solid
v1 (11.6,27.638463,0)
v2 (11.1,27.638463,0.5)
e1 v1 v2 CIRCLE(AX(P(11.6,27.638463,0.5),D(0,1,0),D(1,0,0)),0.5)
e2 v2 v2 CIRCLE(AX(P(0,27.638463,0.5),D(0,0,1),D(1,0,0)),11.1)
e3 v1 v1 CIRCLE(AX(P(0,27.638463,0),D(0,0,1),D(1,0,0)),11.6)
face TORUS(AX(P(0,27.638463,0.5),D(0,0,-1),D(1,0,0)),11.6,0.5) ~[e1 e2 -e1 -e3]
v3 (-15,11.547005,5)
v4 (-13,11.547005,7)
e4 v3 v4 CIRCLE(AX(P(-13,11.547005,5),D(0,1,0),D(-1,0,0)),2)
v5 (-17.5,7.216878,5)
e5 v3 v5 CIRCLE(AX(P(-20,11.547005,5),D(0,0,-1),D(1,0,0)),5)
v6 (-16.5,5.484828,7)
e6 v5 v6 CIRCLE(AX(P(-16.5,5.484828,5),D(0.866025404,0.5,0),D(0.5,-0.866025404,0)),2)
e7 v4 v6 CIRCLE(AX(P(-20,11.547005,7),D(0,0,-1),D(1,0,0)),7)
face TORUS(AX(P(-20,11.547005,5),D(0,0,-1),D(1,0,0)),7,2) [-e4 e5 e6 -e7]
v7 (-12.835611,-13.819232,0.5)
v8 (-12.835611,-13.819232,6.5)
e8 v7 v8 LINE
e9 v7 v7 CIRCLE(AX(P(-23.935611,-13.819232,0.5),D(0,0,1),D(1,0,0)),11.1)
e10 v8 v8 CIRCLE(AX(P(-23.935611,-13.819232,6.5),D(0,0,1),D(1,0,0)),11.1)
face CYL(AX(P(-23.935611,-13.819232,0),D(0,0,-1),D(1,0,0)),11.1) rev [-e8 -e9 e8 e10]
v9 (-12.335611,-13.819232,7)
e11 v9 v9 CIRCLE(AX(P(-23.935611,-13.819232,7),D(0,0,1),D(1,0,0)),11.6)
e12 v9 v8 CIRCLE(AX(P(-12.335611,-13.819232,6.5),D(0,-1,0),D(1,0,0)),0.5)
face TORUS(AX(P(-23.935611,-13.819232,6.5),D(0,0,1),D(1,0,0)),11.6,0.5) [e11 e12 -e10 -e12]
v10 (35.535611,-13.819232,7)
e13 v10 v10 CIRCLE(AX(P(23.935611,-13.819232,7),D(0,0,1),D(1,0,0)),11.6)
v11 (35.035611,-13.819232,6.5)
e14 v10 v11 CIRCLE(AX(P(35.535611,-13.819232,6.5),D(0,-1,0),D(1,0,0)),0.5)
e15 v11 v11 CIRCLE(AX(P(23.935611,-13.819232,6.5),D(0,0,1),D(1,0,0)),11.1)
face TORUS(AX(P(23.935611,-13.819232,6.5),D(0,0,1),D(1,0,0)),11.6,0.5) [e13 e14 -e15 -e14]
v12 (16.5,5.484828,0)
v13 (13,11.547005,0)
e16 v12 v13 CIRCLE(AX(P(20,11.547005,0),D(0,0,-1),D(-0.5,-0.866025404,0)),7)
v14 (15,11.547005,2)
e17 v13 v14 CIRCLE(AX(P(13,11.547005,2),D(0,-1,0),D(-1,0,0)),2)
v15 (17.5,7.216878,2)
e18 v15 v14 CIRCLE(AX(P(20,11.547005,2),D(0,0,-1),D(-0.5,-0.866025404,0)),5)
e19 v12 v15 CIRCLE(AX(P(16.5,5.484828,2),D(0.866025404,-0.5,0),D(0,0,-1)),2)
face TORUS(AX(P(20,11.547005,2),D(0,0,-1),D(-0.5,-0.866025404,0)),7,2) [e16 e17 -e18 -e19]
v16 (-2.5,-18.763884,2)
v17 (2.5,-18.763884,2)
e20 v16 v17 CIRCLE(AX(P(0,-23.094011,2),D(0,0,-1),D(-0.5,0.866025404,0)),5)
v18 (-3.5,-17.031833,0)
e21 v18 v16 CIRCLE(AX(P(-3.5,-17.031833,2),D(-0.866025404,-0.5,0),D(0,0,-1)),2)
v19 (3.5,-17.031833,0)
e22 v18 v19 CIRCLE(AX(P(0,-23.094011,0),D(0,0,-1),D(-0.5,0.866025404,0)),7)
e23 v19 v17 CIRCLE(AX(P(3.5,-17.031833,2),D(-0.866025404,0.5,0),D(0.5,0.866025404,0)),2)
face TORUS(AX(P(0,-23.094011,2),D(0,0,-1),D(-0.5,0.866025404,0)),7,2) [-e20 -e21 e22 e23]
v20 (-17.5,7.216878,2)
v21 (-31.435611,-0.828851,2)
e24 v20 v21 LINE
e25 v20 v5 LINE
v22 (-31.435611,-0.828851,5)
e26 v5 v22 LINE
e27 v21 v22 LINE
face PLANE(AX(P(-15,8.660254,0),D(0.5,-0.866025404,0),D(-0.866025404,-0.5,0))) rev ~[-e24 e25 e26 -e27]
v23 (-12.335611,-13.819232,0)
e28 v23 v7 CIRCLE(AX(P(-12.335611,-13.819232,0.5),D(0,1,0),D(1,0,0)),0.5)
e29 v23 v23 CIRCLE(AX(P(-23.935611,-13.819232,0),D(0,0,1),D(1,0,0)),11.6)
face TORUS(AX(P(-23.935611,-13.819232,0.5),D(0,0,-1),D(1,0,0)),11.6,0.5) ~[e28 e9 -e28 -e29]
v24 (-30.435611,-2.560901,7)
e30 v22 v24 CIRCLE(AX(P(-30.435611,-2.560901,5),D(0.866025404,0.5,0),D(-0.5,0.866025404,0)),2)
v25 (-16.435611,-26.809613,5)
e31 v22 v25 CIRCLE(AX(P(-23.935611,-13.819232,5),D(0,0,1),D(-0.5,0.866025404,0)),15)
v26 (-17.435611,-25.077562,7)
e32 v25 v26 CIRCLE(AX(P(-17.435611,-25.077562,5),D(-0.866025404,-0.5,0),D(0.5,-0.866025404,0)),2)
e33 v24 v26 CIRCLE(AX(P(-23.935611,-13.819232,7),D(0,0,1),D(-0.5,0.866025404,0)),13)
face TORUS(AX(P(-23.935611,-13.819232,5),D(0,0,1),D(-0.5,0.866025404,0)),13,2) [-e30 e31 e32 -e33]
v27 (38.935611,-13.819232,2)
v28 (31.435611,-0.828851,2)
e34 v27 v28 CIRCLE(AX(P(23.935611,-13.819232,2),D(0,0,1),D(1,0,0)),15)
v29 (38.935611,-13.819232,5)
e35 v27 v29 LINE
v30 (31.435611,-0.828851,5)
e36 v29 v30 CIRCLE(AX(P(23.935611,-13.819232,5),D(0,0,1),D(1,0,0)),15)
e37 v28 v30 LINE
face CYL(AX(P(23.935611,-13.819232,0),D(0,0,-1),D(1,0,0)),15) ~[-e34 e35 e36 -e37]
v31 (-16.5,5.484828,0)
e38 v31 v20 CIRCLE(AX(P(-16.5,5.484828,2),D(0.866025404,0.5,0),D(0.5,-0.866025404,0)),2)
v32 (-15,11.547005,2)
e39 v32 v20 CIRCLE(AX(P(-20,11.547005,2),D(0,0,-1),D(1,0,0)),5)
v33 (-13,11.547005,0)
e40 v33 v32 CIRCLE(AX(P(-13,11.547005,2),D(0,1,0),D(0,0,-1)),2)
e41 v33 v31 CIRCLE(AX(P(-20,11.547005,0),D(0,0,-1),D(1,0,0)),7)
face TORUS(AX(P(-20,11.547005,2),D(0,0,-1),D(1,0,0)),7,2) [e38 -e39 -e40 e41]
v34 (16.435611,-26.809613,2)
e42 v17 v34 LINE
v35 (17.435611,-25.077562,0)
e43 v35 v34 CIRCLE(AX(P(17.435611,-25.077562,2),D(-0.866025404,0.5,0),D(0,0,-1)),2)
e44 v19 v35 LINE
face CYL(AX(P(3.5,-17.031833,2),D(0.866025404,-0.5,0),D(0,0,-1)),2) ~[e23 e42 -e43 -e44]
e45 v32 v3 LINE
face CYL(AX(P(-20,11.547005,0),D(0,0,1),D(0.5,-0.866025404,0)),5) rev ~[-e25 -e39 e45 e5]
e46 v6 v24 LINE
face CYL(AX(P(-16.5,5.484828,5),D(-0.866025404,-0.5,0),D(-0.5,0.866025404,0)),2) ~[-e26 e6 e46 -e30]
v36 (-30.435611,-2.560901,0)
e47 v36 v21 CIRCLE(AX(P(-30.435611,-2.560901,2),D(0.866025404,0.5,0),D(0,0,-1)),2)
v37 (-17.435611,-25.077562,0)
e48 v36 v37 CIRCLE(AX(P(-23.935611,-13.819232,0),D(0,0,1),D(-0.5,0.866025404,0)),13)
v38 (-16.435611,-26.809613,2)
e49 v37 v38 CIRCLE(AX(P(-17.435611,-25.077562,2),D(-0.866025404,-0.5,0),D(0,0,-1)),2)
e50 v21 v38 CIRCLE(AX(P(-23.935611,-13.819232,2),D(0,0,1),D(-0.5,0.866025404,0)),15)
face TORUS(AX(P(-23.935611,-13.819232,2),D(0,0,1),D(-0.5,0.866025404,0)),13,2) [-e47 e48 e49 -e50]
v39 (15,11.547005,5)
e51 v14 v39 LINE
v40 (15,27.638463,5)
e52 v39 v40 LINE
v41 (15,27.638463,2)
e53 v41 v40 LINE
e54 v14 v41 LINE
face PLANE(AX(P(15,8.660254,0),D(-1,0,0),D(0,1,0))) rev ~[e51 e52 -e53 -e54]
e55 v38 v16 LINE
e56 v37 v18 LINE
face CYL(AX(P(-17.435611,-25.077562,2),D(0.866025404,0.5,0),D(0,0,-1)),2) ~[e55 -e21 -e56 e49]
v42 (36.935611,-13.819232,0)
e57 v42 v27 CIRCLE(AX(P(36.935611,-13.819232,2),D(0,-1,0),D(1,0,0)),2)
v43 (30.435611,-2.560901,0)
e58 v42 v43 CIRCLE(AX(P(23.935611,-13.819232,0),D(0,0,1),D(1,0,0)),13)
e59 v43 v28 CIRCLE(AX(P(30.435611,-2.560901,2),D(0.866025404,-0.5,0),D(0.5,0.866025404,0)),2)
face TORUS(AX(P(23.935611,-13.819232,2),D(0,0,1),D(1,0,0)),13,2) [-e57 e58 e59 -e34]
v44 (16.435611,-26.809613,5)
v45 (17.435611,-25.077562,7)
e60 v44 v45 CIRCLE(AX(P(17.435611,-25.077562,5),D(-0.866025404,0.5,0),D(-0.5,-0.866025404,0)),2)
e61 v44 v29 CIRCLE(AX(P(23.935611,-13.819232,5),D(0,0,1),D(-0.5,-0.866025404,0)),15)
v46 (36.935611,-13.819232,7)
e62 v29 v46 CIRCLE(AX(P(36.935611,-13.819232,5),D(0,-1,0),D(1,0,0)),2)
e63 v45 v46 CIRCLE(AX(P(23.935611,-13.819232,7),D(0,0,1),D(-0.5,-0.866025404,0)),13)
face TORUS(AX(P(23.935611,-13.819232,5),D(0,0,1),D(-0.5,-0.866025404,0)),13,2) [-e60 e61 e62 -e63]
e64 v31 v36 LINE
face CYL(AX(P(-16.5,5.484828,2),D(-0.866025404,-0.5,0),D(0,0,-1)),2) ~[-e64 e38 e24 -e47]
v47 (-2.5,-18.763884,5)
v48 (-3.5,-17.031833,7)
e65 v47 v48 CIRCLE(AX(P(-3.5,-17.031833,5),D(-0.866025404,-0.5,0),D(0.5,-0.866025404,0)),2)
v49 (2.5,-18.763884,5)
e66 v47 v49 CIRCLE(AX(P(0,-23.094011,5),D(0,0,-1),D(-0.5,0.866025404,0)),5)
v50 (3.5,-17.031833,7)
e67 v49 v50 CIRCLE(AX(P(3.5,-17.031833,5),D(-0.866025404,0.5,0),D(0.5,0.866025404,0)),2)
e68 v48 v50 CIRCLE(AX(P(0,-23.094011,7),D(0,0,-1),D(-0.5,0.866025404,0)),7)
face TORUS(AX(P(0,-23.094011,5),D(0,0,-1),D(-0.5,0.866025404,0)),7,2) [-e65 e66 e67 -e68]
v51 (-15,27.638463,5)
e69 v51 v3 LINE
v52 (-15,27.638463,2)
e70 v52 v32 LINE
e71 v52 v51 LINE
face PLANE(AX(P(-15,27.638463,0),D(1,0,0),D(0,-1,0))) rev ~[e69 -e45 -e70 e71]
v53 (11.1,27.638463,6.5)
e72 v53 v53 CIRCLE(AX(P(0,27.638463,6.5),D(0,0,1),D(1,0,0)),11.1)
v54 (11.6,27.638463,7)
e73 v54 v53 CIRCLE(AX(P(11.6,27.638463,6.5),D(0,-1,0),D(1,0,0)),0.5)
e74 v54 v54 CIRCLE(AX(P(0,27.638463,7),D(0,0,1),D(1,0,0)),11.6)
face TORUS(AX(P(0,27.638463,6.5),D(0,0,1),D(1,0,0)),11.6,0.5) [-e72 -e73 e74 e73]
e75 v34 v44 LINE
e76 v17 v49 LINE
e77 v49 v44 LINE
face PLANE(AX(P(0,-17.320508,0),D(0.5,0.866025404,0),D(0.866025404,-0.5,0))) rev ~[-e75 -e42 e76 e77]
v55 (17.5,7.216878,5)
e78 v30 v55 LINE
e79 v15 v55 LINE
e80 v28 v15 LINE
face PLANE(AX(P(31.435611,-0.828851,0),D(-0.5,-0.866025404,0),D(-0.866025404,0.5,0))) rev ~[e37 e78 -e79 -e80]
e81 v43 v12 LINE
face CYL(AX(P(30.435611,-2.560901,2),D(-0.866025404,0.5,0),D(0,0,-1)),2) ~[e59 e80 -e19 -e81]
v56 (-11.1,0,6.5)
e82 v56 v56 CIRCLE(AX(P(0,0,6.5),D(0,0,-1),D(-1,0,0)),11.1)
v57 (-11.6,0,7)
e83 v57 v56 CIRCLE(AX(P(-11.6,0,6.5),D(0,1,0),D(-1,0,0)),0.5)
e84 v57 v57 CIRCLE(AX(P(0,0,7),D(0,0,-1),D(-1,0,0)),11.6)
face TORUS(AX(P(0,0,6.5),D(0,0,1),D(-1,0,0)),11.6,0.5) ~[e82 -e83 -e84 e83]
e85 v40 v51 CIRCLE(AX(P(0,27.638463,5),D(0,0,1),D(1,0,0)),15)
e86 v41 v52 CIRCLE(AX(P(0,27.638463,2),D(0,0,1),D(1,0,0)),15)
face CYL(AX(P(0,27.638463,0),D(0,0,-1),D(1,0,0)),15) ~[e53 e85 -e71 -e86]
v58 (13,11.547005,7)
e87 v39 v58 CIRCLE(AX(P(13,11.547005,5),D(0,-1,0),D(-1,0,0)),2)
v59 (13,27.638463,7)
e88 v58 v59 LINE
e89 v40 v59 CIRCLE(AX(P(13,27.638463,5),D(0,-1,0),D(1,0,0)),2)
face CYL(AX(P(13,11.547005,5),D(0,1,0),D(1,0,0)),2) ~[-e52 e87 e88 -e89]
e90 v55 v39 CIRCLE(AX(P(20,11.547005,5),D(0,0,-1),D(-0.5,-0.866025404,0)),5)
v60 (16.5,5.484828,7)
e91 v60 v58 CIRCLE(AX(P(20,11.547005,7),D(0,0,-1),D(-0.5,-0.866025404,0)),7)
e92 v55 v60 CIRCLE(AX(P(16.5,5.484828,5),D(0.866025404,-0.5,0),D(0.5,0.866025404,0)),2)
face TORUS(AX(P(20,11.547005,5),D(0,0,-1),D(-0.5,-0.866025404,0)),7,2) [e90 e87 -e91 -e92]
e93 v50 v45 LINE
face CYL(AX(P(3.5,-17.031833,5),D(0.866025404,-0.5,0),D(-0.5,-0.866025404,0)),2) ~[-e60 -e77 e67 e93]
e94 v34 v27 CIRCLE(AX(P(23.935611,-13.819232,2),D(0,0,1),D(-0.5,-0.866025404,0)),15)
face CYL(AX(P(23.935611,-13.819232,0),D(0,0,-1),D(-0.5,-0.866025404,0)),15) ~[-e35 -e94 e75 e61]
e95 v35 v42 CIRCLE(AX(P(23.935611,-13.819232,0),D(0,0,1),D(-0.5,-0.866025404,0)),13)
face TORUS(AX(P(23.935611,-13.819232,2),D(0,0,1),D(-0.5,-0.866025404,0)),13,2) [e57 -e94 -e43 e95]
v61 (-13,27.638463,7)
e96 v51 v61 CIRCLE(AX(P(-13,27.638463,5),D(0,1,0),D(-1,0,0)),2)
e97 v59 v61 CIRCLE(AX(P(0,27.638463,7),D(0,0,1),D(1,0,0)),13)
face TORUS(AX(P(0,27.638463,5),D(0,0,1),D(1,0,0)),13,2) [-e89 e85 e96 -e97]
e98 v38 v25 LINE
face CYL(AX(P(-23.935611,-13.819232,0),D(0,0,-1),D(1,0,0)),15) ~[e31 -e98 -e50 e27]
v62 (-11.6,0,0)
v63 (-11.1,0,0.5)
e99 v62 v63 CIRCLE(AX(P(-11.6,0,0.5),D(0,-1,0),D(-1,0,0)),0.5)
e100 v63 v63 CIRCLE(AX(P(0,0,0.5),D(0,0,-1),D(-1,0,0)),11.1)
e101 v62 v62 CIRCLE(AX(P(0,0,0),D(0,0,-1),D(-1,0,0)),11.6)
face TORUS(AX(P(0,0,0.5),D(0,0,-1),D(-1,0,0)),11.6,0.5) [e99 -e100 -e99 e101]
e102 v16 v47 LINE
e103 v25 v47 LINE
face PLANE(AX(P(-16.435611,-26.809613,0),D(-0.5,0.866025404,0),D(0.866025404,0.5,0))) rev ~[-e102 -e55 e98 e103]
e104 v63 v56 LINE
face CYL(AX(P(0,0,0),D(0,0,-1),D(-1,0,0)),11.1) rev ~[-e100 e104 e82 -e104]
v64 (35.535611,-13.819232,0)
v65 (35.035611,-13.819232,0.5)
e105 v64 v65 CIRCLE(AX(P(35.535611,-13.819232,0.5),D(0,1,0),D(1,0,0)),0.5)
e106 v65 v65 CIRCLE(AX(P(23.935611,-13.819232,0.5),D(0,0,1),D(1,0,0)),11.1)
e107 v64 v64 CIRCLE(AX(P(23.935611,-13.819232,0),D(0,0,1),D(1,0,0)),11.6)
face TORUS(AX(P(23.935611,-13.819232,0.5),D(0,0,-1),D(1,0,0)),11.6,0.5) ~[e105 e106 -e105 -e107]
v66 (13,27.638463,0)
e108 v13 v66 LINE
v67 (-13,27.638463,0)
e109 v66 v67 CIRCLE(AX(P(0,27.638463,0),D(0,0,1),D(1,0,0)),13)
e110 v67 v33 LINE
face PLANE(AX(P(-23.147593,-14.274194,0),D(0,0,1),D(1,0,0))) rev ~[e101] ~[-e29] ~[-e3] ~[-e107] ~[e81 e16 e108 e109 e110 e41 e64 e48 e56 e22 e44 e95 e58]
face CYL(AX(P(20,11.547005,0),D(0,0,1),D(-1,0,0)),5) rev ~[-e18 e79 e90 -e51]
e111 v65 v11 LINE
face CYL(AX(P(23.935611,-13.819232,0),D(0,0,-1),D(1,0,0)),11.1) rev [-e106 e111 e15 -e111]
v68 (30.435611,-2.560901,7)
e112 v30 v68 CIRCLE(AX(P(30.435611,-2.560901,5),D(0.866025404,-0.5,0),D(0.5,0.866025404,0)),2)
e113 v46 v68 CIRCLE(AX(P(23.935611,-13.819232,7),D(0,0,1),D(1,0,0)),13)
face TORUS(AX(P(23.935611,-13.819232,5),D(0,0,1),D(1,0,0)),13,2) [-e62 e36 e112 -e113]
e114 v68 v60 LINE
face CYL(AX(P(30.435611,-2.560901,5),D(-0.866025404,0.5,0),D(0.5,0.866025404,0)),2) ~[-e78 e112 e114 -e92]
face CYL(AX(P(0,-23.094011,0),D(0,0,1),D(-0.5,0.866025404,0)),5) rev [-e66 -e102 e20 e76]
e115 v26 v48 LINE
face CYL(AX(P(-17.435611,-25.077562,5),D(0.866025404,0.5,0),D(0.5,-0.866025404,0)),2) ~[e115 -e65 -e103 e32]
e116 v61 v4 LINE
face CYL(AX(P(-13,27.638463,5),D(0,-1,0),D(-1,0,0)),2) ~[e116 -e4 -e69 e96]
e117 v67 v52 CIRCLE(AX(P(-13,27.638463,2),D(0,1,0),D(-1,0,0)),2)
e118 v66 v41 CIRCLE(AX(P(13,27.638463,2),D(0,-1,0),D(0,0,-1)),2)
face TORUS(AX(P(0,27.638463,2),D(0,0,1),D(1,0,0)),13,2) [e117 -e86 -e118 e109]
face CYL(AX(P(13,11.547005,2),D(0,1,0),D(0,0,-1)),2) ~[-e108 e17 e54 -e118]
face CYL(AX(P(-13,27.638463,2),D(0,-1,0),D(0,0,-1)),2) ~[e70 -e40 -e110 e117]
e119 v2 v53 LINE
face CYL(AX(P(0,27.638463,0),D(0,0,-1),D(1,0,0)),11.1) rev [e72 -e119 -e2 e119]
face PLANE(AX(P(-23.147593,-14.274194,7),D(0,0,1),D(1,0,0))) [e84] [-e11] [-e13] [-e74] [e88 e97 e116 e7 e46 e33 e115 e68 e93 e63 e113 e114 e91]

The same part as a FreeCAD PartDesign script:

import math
import FreeCAD as App
import Part
import Sketcher

V = App.Vector


def edges_at(feature, points):
    """Names of the edges that pass closest to the given points."""
    edges = feature.Shape.Edges
    near = lambda p: min(range(len(edges)), key=lambda i: edges[i].distToShape(Part.Vertex(*p))[0])
    return sorted({f"Edge{near(p) + 1}" for p in points})

doc = App.newDocument("Part")
body = doc.addObject("PartDesign::Body", "Body")

# Sketch on XY plane
sketch1 = body.newObject("Sketcher::SketchObject", "Sketch")
sketch1.AttachmentSupport = (doc.getObject("XY_Plane"), [""])
sketch1.MapMode = "FlatFace"
sketch1.addGeometry(Part.ArcOfCircle(Part.Circle(V(-24, -14, 0), V(0, 0, 1), 15), math.radians(120), math.radians(300)), False)
sketch1.addGeometry(Part.LineSegment(V(-16, -27, 0), V(0, -17, 0)), False)
sketch1.addGeometry(Part.LineSegment(V(0, -17, 0), V(16, -27, 0)), False)
sketch1.addGeometry(Part.ArcOfCircle(Part.Circle(V(24, -14, 0), V(0, 0, 1), 15), math.radians(-120), math.radians(0)), False)
sketch1.addGeometry(Part.ArcOfCircle(Part.Circle(V(24, -14, 0), V(0, 0, 1), 15), math.radians(0), math.radians(60)), False)
sketch1.addGeometry(Part.LineSegment(V(31, -1, 0), V(15, 9, 0)), False)
sketch1.addGeometry(Part.LineSegment(V(15, 9, 0), V(15, 28, 0)), False)
sketch1.addGeometry(Part.ArcOfCircle(Part.Circle(V(0, 28, 0), V(0, 0, 1), 15), math.radians(0), math.radians(180)), False)
sketch1.addGeometry(Part.LineSegment(V(-15, 28, 0), V(-15, 9, 0)), False)
sketch1.addGeometry(Part.LineSegment(V(-15, 9, 0), V(-31, -1, 0)), False)
sketch1.addGeometry(Part.Circle(V(-24, -14, 0), V(0, 0, 1), 11), False)
sketch1.addGeometry(Part.Circle(V(24, -14, 0), V(0, 0, 1), 11), False)
sketch1.addGeometry(Part.Circle(V(0, 0, 0), V(0, 0, 1), 11), False)
sketch1.addGeometry(Part.Circle(V(0, 28, 0), V(0, 0, 1), 11), False)
sketch1.addConstraint(Sketcher.Constraint("Tangent", 0, 2, 1, 1))
sketch1.addConstraint(Sketcher.Constraint("Coincident", 1, 2, 2, 1))
sketch1.addConstraint(Sketcher.Constraint("Tangent", 2, 2, 3, 1))
sketch1.addConstraint(Sketcher.Constraint("Tangent", 3, 2, 4, 1))
sketch1.addConstraint(Sketcher.Constraint("Tangent", 4, 2, 5, 1))
sketch1.addConstraint(Sketcher.Constraint("Coincident", 5, 2, 6, 1))
sketch1.addConstraint(Sketcher.Constraint("Tangent", 6, 2, 7, 1))
sketch1.addConstraint(Sketcher.Constraint("Tangent", 7, 2, 8, 1))
sketch1.addConstraint(Sketcher.Constraint("Coincident", 8, 2, 9, 1))
sketch1.addConstraint(Sketcher.Constraint("Tangent", 9, 2, 0, 1))
sketch1.addConstraint(Sketcher.Constraint("Vertical", 6))
sketch1.addConstraint(Sketcher.Constraint("Vertical", 8))
sketch1.addConstraint(Sketcher.Constraint("Coincident", 12, 3, -1, 1))
sketch1.addConstraint(Sketcher.Constraint("Coincident", 10, 3, 0, 3))
sketch1.addConstraint(Sketcher.Constraint("Coincident", 11, 3, 3, 3))
sketch1.addConstraint(Sketcher.Constraint("Coincident", 13, 3, 7, 3))
sketch1.addConstraint(Sketcher.Constraint("Equal", 0, 3))
sketch1.addConstraint(Sketcher.Constraint("Equal", 3, 4))
sketch1.addConstraint(Sketcher.Constraint("Equal", 4, 7))
sketch1.addConstraint(Sketcher.Constraint("Equal", 10, 11))
sketch1.addConstraint(Sketcher.Constraint("Equal", 11, 12))
sketch1.addConstraint(Sketcher.Constraint("Equal", 12, 13))
sketch1.addConstraint(Sketcher.Constraint("Symmetric", 0, 3, 3, 3, -2))
sketch1.addConstraint(Sketcher.Constraint("Symmetric", 5, 2, 8, 2, -2))
sketch1.addConstraint(Sketcher.Constraint("PointOnObject", 1, 2, -2))
sketch1.addConstraint(Sketcher.Constraint("Parallel", 2, 5))
sketch1.addConstraint(Sketcher.Constraint("Horizontal", 11, 3, 3, 2))
sketch1.addConstraint(Sketcher.Constraint("Equal", 2, 5))
sketch1.addConstraint(Sketcher.Constraint("Radius", 0, 15.0))
sketch1.addConstraint(Sketcher.Constraint("Diameter", 10, 22.2))
sketch1.addConstraint(Sketcher.Constraint("DistanceY", 6, 1, 6, 2, 18.978209))
sketch1.addConstraint(Sketcher.Constraint("Distance", 1, 18.978209))
sketch1.addConstraint(Sketcher.Constraint("DistanceY", 0, 3, -1, 1, 13.819232))
pad1 = body.newObject("PartDesign::Pad", "Pad")
pad1.Profile = sketch1
pad1.Length = 7
doc.recompute()

fillet = body.newObject("PartDesign::Fillet", "Fillet")
fillet.Base = (pad1, edges_at(pad1, [(-15, 8.66, 3.5), (15, 8.66, 3.5), (0, -17.321, 3.5)]))
fillet.Radius = 5
doc.recompute()

fillet2 = body.newObject("PartDesign::Fillet", "Fillet001")
fillet2.Base = (fillet, edges_at(fillet, [
    (-11.1, 27.638, 7),
    (11.1, 0, 7),
    (-35.036, -13.819, 7),
    (12.836, -13.819, 7),
    (-35.036, -13.819, 0),
    (-11.1, 27.638, 0),
    (12.836, -13.819, 0),
    (11.1, 0, 0),
]))
fillet2.Radius = 0.5
doc.recompute()

fillet3 = body.newObject("PartDesign::Fillet", "Fillet002")
fillet3.Base = (fillet2, edges_at(fillet2, [
    (-9.468, -22.787, 0),
    (-2.5, -18.764, 3.5),
    (-16.436, -26.81, 3.5),
    (-9.468, -22.787, 7),
    (0, -18.094, 0),
    (2.5, -18.764, 3.5),
    (0, -18.094, 7),
    (9.468, -22.787, 0),
    (16.436, -26.81, 3.5),
    (9.468, -22.787, 7),
    (31.436, -0.829, 3.5),
    (31.436, -26.81, 0),
    (31.436, -26.81, 7),
    (-31.436, -0.829, 3.5),
    (-36.926, -21.319, 0),
    (-36.926, -21.319, 7),
    (-24.468, 3.194, 0),
    (-17.5, 7.217, 3.5),
    (-24.468, 3.194, 7),
    (-15.67, 9.047, 0),
    (-15, 11.547, 3.5),
    (-15.67, 9.047, 7),
    (-15, 19.593, 0),
    (-15, 27.638, 3.5),
    (-15, 19.593, 7),
    (15, 19.593, 0),
    (15, 11.547, 3.5),
    (15, 27.638, 3.5),
    (15, 19.593, 7),
    (15.67, 9.047, 0),
    (17.5, 7.217, 3.5),
    (15.67, 9.047, 7),
    (24.468, 3.194, 0),
    (24.468, 3.194, 7),
]))
fillet3.Radius = 2

doc.recompute()
